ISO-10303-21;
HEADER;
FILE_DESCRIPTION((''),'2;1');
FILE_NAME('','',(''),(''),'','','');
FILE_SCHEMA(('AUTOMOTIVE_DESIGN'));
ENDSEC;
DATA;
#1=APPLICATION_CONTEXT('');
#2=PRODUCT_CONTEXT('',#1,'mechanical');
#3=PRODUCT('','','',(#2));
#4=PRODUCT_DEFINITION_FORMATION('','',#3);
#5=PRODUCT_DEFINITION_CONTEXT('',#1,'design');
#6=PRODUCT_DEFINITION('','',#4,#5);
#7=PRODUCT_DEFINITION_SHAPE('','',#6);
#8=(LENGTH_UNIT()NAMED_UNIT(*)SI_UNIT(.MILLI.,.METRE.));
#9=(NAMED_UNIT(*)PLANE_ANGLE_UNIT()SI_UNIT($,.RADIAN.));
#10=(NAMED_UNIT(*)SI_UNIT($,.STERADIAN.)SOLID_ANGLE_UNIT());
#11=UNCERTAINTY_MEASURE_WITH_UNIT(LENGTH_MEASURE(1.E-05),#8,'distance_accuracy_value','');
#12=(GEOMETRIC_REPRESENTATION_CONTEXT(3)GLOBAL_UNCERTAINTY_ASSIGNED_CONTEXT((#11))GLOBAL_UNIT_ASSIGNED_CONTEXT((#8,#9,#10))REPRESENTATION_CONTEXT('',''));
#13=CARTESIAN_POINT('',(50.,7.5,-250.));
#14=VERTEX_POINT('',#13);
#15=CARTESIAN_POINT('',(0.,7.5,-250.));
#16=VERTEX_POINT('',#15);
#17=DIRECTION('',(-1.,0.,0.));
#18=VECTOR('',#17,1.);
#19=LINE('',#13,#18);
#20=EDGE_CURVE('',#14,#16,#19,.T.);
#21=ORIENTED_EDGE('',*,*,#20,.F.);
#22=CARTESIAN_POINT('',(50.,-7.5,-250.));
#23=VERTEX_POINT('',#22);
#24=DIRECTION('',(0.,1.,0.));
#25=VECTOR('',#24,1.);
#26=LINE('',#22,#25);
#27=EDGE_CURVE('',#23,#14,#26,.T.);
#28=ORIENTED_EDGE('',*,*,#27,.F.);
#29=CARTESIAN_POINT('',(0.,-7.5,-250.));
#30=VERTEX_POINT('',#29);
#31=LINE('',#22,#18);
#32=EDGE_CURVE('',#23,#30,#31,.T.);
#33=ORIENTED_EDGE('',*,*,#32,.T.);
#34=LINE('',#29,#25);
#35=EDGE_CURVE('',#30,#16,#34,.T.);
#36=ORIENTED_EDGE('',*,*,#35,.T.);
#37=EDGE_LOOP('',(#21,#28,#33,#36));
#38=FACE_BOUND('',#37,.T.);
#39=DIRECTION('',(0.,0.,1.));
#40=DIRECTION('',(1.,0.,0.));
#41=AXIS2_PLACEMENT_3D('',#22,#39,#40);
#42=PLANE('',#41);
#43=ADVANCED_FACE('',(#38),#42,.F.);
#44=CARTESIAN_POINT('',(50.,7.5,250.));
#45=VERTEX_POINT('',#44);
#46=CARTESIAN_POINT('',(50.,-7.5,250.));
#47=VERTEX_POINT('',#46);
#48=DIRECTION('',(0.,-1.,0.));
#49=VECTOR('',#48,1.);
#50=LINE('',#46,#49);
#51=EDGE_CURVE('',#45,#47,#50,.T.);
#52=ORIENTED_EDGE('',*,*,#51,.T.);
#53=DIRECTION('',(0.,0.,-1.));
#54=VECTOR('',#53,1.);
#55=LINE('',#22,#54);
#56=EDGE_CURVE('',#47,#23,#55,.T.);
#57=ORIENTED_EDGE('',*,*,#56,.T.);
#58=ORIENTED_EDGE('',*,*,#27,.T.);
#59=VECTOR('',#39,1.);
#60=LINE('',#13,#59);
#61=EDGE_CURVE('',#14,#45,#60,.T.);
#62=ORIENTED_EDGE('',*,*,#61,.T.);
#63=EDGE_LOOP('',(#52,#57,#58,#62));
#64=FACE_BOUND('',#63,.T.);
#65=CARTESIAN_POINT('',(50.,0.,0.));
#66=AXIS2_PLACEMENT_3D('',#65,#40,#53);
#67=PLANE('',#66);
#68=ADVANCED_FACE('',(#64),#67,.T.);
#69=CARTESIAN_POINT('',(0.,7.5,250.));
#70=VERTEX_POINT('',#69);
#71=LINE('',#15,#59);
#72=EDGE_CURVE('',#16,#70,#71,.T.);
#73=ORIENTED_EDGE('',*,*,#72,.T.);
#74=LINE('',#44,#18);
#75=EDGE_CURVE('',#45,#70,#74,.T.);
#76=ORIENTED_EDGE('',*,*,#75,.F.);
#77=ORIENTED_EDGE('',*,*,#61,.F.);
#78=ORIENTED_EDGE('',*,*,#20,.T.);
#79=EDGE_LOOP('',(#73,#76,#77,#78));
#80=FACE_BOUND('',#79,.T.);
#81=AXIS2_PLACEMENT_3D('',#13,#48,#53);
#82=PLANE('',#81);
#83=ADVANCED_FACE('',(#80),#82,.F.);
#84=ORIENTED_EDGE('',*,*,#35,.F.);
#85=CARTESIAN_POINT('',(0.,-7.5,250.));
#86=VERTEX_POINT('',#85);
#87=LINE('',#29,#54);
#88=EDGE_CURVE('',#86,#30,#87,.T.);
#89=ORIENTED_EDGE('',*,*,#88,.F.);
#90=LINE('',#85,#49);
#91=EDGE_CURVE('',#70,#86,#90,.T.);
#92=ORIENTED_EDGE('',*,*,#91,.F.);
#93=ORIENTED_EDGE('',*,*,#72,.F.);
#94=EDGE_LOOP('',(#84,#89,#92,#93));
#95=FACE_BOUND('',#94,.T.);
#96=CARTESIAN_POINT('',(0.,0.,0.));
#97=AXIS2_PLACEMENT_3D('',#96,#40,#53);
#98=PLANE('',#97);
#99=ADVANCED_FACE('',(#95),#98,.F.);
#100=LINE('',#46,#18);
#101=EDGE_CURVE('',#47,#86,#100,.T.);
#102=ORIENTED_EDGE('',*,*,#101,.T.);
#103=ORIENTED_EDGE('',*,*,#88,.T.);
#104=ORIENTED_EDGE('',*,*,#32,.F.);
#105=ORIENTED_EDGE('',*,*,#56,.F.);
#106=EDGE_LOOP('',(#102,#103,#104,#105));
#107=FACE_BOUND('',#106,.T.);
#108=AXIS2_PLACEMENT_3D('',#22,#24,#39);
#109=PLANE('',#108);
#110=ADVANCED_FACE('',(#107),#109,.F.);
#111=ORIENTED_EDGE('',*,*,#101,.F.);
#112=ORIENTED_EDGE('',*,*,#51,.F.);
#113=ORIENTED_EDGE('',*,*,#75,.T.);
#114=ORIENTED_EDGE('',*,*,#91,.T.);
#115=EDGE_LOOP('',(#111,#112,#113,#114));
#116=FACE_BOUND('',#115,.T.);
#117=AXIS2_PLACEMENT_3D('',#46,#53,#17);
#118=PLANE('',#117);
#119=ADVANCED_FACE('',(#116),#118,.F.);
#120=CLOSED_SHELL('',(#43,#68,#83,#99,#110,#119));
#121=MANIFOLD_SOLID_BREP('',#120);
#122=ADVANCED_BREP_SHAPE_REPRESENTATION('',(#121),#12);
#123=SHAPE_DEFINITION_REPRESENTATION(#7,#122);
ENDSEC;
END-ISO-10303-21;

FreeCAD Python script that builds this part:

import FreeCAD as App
import Part
import Sketcher
Q = App.Units.Quantity


def add_polygon(sketch, points):
    """Adds a closed chain of lines whose ends are joined by coincident constraints."""
    first, n = sketch.GeometryCount, len(points)
    for a, b in zip(points, points[1:] + points[:1]):
        sketch.addGeometry(Part.LineSegment(App.Vector(*a, 0), App.Vector(*b, 0)), False)
    for i in range(n):
        sketch.addConstraint(Sketcher.Constraint("Coincident", first + i, 2, first + (i + 1) % n, 1))

doc = App.newDocument("Part")
body = doc.addObject("PartDesign::Body", "Body")

# Sketch on YZ plane
sketch1 = doc.addObject("Sketcher::SketchObject", "Sketch")
body.addObject(sketch1)
sketch1.AttachmentSupport = (doc.YZ_Plane, [""])
sketch1.MapMode = "FlatFace"
add_polygon(sketch1, [(8, 250), (-8, 250), (-8, -250), (8, -250)])  # lines 0-3
sketch1.addConstraint(Sketcher.Constraint("Horizontal", 0))
sketch1.addConstraint(Sketcher.Constraint("Vertical", 1))
sketch1.addConstraint(Sketcher.Constraint("Horizontal", 2))
sketch1.addConstraint(Sketcher.Constraint("Vertical", 3))
sketch1.addConstraint(Sketcher.Constraint("Symmetric", 0, 2, 2, 2, -1, 1))
sketch1.addConstraint(Sketcher.Constraint("DistanceX", 0, 2, 0, 1, Q("15 mm")))
sketch1.addConstraint(Sketcher.Constraint("DistanceY", 1, 2, 1, 1, Q("500 mm")))
pad1 = doc.addObject("PartDesign::Pad", "Pad")
body.addObject(pad1)
pad1.Profile = sketch1
pad1.Length = 50

doc.recompute()
